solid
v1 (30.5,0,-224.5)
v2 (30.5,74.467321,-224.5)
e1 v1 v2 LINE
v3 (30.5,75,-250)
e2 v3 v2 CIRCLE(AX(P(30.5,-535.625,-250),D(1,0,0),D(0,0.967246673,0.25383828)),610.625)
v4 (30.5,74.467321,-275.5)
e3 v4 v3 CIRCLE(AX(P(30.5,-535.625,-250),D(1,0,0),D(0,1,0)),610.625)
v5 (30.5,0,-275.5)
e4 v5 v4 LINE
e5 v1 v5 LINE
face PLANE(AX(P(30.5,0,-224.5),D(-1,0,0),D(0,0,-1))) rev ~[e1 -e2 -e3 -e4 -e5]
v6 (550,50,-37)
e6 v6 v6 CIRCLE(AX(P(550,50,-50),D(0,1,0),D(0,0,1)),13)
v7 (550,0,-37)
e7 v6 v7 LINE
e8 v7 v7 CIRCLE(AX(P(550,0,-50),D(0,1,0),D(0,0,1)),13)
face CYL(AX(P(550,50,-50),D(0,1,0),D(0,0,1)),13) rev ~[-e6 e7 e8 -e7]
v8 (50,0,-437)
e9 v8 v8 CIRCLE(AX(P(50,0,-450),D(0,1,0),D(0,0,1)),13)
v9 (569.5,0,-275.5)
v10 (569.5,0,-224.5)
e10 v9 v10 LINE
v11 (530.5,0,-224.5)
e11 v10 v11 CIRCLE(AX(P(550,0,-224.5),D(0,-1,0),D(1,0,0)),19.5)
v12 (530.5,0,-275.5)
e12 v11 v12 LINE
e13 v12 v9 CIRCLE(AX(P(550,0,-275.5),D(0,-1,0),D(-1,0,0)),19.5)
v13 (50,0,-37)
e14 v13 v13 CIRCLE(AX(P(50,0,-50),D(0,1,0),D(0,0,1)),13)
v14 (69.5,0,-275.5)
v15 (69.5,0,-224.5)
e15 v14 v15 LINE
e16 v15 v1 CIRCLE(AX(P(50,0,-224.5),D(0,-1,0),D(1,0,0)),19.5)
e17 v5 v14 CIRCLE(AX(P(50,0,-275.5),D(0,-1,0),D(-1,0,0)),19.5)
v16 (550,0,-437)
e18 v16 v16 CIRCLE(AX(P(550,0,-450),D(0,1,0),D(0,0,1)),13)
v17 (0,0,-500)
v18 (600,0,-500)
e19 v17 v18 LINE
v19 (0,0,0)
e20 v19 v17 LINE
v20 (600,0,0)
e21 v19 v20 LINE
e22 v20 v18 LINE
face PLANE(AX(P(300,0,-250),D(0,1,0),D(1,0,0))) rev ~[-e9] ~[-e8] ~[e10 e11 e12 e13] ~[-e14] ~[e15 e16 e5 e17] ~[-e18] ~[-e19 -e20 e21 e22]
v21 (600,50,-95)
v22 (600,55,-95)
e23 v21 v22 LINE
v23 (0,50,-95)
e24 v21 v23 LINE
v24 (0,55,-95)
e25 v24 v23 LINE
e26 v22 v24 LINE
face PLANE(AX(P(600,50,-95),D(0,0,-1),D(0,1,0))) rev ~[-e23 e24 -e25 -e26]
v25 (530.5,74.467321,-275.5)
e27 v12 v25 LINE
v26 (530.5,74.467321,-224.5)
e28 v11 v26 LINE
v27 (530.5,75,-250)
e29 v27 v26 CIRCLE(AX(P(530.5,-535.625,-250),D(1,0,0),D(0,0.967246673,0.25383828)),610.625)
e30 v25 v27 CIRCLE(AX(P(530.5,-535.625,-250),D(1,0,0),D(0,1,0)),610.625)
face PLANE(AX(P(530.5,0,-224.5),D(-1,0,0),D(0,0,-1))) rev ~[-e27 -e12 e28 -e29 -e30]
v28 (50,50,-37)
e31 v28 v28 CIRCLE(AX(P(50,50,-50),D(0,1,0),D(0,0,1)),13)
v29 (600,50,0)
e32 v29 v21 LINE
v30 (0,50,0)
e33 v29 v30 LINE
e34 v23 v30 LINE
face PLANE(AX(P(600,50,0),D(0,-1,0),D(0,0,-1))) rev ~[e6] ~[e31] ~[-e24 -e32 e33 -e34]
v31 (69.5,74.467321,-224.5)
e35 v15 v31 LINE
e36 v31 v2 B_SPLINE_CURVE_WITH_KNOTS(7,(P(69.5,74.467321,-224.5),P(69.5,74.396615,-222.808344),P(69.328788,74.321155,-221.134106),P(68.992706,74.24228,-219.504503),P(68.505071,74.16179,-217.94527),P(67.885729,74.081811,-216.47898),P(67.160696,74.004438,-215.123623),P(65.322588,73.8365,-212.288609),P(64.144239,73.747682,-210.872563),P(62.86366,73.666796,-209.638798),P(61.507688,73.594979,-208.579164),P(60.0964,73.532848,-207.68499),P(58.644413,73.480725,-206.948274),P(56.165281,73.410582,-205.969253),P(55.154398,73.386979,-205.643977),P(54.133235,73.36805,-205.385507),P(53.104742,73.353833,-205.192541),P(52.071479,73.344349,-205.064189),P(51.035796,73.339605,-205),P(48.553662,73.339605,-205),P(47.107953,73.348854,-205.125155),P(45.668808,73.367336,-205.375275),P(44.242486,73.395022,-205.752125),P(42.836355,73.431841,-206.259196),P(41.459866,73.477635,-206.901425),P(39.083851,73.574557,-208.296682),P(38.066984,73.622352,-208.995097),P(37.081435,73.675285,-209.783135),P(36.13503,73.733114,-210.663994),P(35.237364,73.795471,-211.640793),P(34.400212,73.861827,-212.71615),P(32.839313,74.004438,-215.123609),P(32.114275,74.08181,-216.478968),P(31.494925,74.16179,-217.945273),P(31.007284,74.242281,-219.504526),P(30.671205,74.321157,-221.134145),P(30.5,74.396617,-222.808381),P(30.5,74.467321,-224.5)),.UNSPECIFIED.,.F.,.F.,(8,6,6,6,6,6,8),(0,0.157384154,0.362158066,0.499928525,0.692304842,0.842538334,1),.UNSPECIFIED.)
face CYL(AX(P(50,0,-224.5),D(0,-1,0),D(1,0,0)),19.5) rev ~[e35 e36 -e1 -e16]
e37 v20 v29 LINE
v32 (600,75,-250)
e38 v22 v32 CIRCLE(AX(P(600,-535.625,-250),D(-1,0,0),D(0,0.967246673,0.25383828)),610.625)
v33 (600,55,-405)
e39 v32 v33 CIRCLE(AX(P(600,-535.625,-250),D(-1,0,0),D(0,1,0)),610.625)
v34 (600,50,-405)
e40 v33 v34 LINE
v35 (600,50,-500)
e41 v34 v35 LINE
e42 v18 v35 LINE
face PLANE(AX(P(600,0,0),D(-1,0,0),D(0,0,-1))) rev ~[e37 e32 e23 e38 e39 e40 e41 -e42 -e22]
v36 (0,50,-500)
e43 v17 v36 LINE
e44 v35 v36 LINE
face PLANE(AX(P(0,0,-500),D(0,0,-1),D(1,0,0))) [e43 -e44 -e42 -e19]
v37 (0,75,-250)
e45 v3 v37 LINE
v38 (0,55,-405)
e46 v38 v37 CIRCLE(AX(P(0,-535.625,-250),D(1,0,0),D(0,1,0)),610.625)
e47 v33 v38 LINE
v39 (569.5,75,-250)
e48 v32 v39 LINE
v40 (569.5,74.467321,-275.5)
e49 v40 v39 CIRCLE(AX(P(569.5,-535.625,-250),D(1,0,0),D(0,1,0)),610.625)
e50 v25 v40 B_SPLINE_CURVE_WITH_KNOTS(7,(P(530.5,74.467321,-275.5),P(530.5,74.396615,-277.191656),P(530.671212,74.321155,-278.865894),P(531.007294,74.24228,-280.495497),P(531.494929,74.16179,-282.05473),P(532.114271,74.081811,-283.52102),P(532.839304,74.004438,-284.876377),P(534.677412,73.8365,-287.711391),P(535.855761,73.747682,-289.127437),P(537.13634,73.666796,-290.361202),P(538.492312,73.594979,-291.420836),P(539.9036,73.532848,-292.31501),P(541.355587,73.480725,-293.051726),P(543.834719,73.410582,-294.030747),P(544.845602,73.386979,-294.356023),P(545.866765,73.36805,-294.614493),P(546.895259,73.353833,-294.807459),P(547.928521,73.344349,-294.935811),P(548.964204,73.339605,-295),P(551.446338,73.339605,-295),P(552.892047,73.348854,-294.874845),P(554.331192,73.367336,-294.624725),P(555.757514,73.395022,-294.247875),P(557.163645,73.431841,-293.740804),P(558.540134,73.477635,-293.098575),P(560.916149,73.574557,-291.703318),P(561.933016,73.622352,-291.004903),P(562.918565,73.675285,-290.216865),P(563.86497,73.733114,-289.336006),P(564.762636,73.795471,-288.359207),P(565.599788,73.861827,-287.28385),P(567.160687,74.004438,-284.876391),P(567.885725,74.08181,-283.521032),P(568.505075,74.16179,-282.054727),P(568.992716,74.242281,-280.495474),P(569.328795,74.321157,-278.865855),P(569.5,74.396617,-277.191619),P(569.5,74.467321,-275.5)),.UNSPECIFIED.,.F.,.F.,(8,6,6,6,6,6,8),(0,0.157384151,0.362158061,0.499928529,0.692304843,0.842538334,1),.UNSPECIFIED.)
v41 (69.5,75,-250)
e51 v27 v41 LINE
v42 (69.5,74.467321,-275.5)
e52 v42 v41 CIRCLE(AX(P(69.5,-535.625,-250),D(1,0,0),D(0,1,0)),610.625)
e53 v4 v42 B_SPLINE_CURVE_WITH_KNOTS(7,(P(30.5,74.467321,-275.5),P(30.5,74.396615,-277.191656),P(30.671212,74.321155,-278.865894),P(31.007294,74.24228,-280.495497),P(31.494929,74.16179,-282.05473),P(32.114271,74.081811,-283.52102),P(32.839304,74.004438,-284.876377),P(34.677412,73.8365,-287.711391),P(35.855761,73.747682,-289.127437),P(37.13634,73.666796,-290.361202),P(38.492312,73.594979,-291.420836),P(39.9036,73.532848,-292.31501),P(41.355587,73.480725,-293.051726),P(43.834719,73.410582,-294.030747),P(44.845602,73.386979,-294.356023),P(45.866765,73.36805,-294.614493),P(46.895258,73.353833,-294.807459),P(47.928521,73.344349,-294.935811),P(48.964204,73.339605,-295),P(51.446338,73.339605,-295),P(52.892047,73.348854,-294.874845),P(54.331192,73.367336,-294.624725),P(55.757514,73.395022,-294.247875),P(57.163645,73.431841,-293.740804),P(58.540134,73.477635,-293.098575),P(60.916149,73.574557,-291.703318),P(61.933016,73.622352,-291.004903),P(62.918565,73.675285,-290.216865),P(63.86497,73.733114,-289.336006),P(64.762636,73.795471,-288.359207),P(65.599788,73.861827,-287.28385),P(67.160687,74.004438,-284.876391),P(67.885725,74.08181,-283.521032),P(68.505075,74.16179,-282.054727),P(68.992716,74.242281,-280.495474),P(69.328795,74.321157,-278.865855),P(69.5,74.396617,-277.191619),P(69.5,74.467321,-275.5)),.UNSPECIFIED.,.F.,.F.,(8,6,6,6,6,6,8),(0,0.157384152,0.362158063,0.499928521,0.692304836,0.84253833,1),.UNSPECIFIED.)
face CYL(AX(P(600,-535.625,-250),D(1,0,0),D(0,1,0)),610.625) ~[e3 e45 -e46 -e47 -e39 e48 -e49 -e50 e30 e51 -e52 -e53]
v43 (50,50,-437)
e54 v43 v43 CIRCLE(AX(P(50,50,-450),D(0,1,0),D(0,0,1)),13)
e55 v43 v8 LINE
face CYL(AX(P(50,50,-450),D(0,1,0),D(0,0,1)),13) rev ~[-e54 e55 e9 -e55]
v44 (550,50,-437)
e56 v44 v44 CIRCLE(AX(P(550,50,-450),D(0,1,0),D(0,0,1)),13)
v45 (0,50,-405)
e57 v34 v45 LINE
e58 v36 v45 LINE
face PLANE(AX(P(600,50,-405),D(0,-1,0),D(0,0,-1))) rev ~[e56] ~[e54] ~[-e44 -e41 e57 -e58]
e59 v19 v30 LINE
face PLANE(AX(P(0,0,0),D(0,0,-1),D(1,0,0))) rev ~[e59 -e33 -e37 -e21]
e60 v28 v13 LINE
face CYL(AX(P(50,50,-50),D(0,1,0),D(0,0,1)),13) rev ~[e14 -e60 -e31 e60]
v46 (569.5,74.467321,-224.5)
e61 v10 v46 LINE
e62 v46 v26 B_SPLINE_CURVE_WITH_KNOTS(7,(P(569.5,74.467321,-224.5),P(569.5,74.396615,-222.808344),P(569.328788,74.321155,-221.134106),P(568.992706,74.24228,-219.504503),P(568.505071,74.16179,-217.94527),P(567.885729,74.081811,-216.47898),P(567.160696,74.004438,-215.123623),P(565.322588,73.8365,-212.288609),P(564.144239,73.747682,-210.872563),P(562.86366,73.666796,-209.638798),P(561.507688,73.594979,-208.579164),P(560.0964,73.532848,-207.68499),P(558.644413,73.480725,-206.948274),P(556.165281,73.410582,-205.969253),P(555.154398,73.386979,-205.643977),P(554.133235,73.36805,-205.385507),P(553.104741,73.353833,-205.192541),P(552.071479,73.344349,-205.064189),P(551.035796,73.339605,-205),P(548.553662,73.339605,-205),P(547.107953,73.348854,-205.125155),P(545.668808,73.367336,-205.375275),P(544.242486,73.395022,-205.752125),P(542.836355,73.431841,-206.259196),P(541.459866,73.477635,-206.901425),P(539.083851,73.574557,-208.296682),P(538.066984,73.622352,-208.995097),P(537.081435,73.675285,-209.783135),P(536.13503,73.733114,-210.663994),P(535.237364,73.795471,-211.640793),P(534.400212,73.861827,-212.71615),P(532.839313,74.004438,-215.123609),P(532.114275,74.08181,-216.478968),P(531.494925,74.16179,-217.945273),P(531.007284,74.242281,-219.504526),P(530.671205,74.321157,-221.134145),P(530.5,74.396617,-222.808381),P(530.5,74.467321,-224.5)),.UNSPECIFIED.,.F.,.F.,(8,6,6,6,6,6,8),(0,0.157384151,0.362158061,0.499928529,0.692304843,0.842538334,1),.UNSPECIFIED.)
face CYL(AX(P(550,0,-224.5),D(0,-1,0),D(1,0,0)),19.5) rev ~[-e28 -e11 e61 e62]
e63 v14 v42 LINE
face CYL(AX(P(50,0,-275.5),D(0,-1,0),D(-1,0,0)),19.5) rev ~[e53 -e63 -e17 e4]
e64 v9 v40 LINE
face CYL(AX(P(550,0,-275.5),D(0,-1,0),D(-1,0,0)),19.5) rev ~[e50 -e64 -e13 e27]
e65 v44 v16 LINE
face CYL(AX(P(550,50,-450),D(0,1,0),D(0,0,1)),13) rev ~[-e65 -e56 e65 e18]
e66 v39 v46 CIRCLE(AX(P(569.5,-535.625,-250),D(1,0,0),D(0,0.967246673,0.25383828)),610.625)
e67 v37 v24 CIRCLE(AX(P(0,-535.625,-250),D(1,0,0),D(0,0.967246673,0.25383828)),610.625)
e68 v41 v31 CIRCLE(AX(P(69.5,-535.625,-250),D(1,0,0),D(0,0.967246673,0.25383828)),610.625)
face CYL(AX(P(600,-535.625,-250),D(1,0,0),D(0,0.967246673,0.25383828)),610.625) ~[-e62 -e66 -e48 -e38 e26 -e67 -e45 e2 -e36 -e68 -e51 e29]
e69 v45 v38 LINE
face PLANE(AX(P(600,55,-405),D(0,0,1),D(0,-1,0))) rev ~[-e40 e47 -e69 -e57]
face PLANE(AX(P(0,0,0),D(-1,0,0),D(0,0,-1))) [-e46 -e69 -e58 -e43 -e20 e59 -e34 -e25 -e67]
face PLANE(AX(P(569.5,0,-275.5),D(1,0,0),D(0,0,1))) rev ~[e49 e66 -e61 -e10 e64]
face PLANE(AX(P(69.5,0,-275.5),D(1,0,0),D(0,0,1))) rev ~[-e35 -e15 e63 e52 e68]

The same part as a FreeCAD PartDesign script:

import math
import FreeCAD as App
import Part
import Sketcher

V = App.Vector
Q = App.Units.Quantity

doc = App.newDocument("Part")
body = doc.addObject("PartDesign::Body", "Body")

# Sketch on XZ plane
sketch1 = body.newObject("Sketcher::SketchObject", "Sketch")
sketch1.AttachmentSupport = (doc.getObject("XZ_Plane"), [""])
sketch1.MapMode = "FlatFace"
sketch1.addGeometry(Part.LineSegment(V(0, -500, 0), V(0, 0, 0)), False)
sketch1.addGeometry(Part.LineSegment(V(0, 0, 0), V(600, 0, 0)), False)
sketch1.addGeometry(Part.LineSegment(V(600, 0, 0), V(600, -500, 0)), False)
sketch1.addGeometry(Part.LineSegment(V(600, -500, 0), V(0, -500, 0)), False)
sketch1.addConstraint(Sketcher.Constraint("Coincident", 0, 2, 1, 1))
sketch1.addConstraint(Sketcher.Constraint("Coincident", 1, 2, 2, 1))
sketch1.addConstraint(Sketcher.Constraint("Coincident", 2, 2, 3, 1))
sketch1.addConstraint(Sketcher.Constraint("Coincident", 3, 2, 0, 1))
sketch1.addConstraint(Sketcher.Constraint("Vertical", 0))
sketch1.addConstraint(Sketcher.Constraint("Horizontal", 1))
sketch1.addConstraint(Sketcher.Constraint("Vertical", 2))
sketch1.addConstraint(Sketcher.Constraint("Horizontal", 3))
sketch1.addConstraint(Sketcher.Constraint("Coincident", 0, 2, -1, 1))
sketch1.addConstraint(Sketcher.Constraint("DistanceX", 1, 1, 1, 2, Q("600 mm")))
sketch1.addConstraint(Sketcher.Constraint("DistanceY", 0, 1, 0, 2, Q("500 mm")))
pad1 = body.newObject("PartDesign::Pad", "Pad")
pad1.Profile = sketch1
pad1.Length = 75
pad1.Reversed = True

# Sketch on YZ plane
sketch2 = body.newObject("Sketcher::SketchObject", "Sketch001")
sketch2.AttachmentSupport = (doc.getObject("YZ_Plane"), [""])
sketch2.MapMode = "FlatFace"
sketch2.AttachmentOffset = App.Placement(V(0, 0, 600), App.Rotation())
sketch2.addGeometry(Part.LineSegment(V(55, -405, 0), V(50, -405, 0)), False)
sketch2.addGeometry(Part.LineSegment(V(50, -405, 0), V(50, -500, 0)), False)
sketch2.addGeometry(Part.LineSegment(V(50, -500, 0), V(75, -500, 0)), False)
sketch2.addGeometry(Part.LineSegment(V(75, -500, 0), V(75, -250, 0)), False)
sketch2.addGeometry(Part.ArcOfCircle(Part.Circle(V(-535.625, -250, 0), V(0, 0, 1), 610.625), math.radians(-14.704759), math.radians(0)), False)
sketch2.addConstraint(Sketcher.Constraint("Coincident", 0, 2, 1, 1))
sketch2.addConstraint(Sketcher.Constraint("Coincident", 1, 2, 2, 1))
sketch2.addConstraint(Sketcher.Constraint("Coincident", 2, 2, 3, 1))
sketch2.addConstraint(Sketcher.Constraint("Tangent", 3, 2, 4, 2))
sketch2.addConstraint(Sketcher.Constraint("Coincident", 4, 1, 0, 1))
sketch2.addConstraint(Sketcher.Constraint("Horizontal", 0))
sketch2.addConstraint(Sketcher.Constraint("Vertical", 1))
sketch2.addConstraint(Sketcher.Constraint("Horizontal", 2))
sketch2.addConstraint(Sketcher.Constraint("Vertical", 3))
sketch2.addConstraint(Sketcher.Constraint("DistanceX", 0, 2, 0, 1, Q("5 mm")))
sketch2.addConstraint(Sketcher.Constraint("DistanceX", 2, 1, 2, 2, Q("25 mm")))
sketch2.addConstraint(Sketcher.Constraint("DistanceY", 1, 2, 1, 1, Q("95 mm")))
sketch2.addConstraint(Sketcher.Constraint("DistanceY", 3, 1, 3, 2, Q("250 mm")))
sketch2.addConstraint(Sketcher.Constraint("DistanceY", 4, 3, -1, 1, Q("250 mm")))
sketch2.addConstraint(Sketcher.Constraint("DistanceX", -1, 1, 0, 2, Q("50 mm")))
pocket1 = body.newObject("PartDesign::Pocket", "Pocket")
pocket1.Profile = sketch2
pocket1.Type = "ThroughAll"

# Sketch on YZ plane
sketch3 = body.newObject("Sketcher::SketchObject", "Sketch002")
sketch3.AttachmentSupport = (doc.getObject("YZ_Plane"), [""])
sketch3.MapMode = "FlatFace"
sketch3.AttachmentOffset = App.Placement(V(0, 0, 600), App.Rotation())
sketch3.addGeometry(Part.LineSegment(V(75, 0, 0), V(50, 0, 0)), False)
sketch3.addGeometry(Part.LineSegment(V(50, 0, 0), V(50, -95, 0)), False)
sketch3.addGeometry(Part.LineSegment(V(50, -95, 0), V(55, -95, 0)), False)
sketch3.addGeometry(Part.ArcOfCircle(Part.Circle(V(-535.625, -250, 0), V(0, 0, 1), 610.625), math.radians(0), math.radians(14.704759)), False)
sketch3.addGeometry(Part.LineSegment(V(75, -250, 0), V(75, 0, 0)), False)
sketch3.addConstraint(Sketcher.Constraint("Coincident", 0, 2, 1, 1))
sketch3.addConstraint(Sketcher.Constraint("Coincident", 1, 2, 2, 1))
sketch3.addConstraint(Sketcher.Constraint("Coincident", 2, 2, 3, 2))
sketch3.addConstraint(Sketcher.Constraint("Tangent", 3, 1, 4, 1))
sketch3.addConstraint(Sketcher.Constraint("Coincident", 4, 2, 0, 1))
sketch3.addConstraint(Sketcher.Constraint("Horizontal", 0))
sketch3.addConstraint(Sketcher.Constraint("Vertical", 1))
sketch3.addConstraint(Sketcher.Constraint("Horizontal", 2))
sketch3.addConstraint(Sketcher.Constraint("Vertical", 4))
sketch3.addConstraint(Sketcher.Constraint("PointOnObject", 0, 2, -1))
sketch3.addConstraint(Sketcher.Constraint("DistanceX", 0, 2, 0, 1, Q("25 mm")))
sketch3.addConstraint(Sketcher.Constraint("DistanceX", 2, 1, 2, 2, Q("5 mm")))
sketch3.addConstraint(Sketcher.Constraint("DistanceY", 1, 2, 1, 1, Q("95 mm")))
sketch3.addConstraint(Sketcher.Constraint("DistanceY", 4, 1, 4, 2, Q("250 mm")))
sketch3.addConstraint(Sketcher.Constraint("DistanceX", -1, 1, 0, 2, Q("50 mm")))
pocket2 = body.newObject("PartDesign::Pocket", "Pocket001")
pocket2.Profile = sketch3
pocket2.Type = "ThroughAll"

# Sketch on XZ plane
sketch4 = body.newObject("Sketcher::SketchObject", "Sketch003")
sketch4.AttachmentSupport = (doc.getObject("XZ_Plane"), [""])
sketch4.MapMode = "FlatFace"
sketch4.AttachmentOffset = App.Placement(V(0, 0, -50), App.Rotation())
sketch4.addGeometry(Part.Circle(V(50, -450, 0), V(0, 0, 1), 13), False)
sketch4.addGeometry(Part.Circle(V(550, -450, 0), V(0, 0, 1), 13), False)
sketch4.addGeometry(Part.Circle(V(50, -50, 0), V(0, 0, 1), 13), False)
sketch4.addGeometry(Part.Circle(V(550, -50, 0), V(0, 0, 1), 13), False)
sketch4.addConstraint(Sketcher.Constraint("Equal", 0, 1))
sketch4.addConstraint(Sketcher.Constraint("Equal", 1, 2))
sketch4.addConstraint(Sketcher.Constraint("Equal", 2, 3))
sketch4.addConstraint(Sketcher.Constraint("Horizontal", 0, 3, 1, 3))
sketch4.addConstraint(Sketcher.Constraint("Horizontal", 2, 3, 3, 3))
sketch4.addConstraint(Sketcher.Constraint("Vertical", 0, 3, 2, 3))
sketch4.addConstraint(Sketcher.Constraint("Vertical", 1, 3, 3, 3))
sketch4.addConstraint(Sketcher.Constraint("Diameter", 0, Q("26 mm")))
sketch4.addConstraint(Sketcher.Constraint("DistanceX", -1, 1, 0, 3, Q("50 mm")))
sketch4.addConstraint(Sketcher.Constraint("DistanceY", 0, 3, -1, 1, Q("450 mm")))
sketch4.addConstraint(Sketcher.Constraint("DistanceX", -1, 1, 1, 3, Q("550 mm")))
sketch4.addConstraint(Sketcher.Constraint("DistanceY", 2, 3, -1, 1, Q("50 mm")))
pocket3 = body.newObject("PartDesign::Pocket", "Pocket002")
pocket3.Profile = sketch4
pocket3.Type = "ThroughAll"
pocket3.Reversed = True

# Sketch on XZ plane
sketch5 = body.newObject("Sketcher::SketchObject", "Sketch004")
sketch5.AttachmentSupport = (doc.getObject("XZ_Plane"), [""])
sketch5.MapMode = "FlatFace"
sketch5.addGeometry(Part.LineSegment(V(30.5, -224.5, 0), V(30.5, -275.5, 0)), False)
sketch5.addGeometry(Part.ArcOfCircle(Part.Circle(V(50, -275.5, 0), V(0, 0, 1), 19.5), math.radians(180), math.radians(360)), False)
sketch5.addGeometry(Part.LineSegment(V(69.5, -275.5, 0), V(69.5, -224.5, 0)), False)
sketch5.addGeometry(Part.ArcOfCircle(Part.Circle(V(50, -224.5, 0), V(0, 0, 1), 19.5), math.radians(0), math.radians(180)), False)
sketch5.addConstraint(Sketcher.Constraint("Tangent", 0, 2, 1, 1))
sketch5.addConstraint(Sketcher.Constraint("Tangent", 1, 2, 2, 1))
sketch5.addConstraint(Sketcher.Constraint("Tangent", 2, 2, 3, 1))
sketch5.addConstraint(Sketcher.Constraint("Tangent", 3, 2, 0, 1))
sketch5.addConstraint(Sketcher.Constraint("Vertical", 0))
sketch5.addConstraint(Sketcher.Constraint("Vertical", 2))
sketch5.addConstraint(Sketcher.Constraint("Radius", 1, Q("19.5 mm")))
sketch5.addConstraint(Sketcher.Constraint("DistanceY", 0, 2, 0, 1, Q("51 mm")))
sketch5.addConstraint(Sketcher.Constraint("DistanceX", -1, 1, 1, 3, Q("50 mm")))
sketch5.addConstraint(Sketcher.Constraint("DistanceY", 1, 3, -1, 1, Q("275.5 mm")))
pocket4 = body.newObject("PartDesign::Pocket", "Pocket003")
pocket4.Profile = sketch5
pocket4.Type = "ThroughAll"
doc.recompute()

linearpattern = body.newObject("PartDesign::LinearPattern", "LinearPattern")
linearpattern.Originals = [pocket4]
linearpattern.Direction = (doc.getObject("X_Axis"), [""])
linearpattern.Mode = "offset"
linearpattern.Offset = 500
linearpattern.Occurrences = 2
body.Tip = linearpattern

doc.recompute()
